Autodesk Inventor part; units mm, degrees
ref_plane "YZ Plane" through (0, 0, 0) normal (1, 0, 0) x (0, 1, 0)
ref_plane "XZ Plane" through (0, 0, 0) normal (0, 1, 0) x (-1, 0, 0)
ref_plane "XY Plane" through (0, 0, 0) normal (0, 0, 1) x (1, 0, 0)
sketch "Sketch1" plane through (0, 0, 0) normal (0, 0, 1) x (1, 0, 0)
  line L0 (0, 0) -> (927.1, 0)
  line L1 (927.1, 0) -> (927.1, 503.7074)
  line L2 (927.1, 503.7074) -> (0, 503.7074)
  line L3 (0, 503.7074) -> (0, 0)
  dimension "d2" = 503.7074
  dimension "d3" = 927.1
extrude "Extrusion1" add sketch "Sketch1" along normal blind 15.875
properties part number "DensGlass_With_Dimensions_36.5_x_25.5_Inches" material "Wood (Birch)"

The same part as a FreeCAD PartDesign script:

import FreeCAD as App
import Part
import Sketcher
Q = App.Units.Quantity

doc = App.newDocument("Part")
body = doc.addObject("PartDesign::Body", "Body")

# Sketch on XY plane
sketch1 = doc.addObject("Sketcher::SketchObject", "Sketch")
body.addObject(sketch1)
sketch1.AttachmentSupport = (doc.XY_Plane, [""])
sketch1.MapMode = "FlatFace"
sketch1.addGeometry([
    Part.LineSegment(App.Vector(0, 503.7074, 0), App.Vector(0, 0, 0)),
    Part.LineSegment(App.Vector(0, 0, 0), App.Vector(927.1, 0, 0)),
    Part.LineSegment(App.Vector(927.1, 0, 0), App.Vector(927.1, 503.7074, 0)),
    Part.LineSegment(App.Vector(927.1, 503.7074, 0), App.Vector(0, 503.7074, 0)),
], False)
sketch1.addConstraint([
    Sketcher.Constraint("Coincident", 0, 2, 1, 1),
    Sketcher.Constraint("Coincident", 1, 2, 2, 1),
    Sketcher.Constraint("Coincident", 2, 2, 3, 1),
    Sketcher.Constraint("Coincident", 3, 2, 0, 1),
    Sketcher.Constraint("Vertical", 0),
    Sketcher.Constraint("Horizontal", 1),
    Sketcher.Constraint("Vertical", 2),
    Sketcher.Constraint("Horizontal", 3),
    Sketcher.Constraint("Coincident", 0, 2, -1, 1),
    Sketcher.Constraint("DistanceX", 1, 1, 1, 2, Q("36.5 in")),
    Sketcher.Constraint("DistanceY", 0, 2, 0, 1, Q("19.831 in")),
])
pad1 = doc.addObject("PartDesign::Pad", "Pad")
body.addObject(pad1)
pad1.Profile = sketch1
pad1.Length = Q("0.625 in")

doc.recompute()
